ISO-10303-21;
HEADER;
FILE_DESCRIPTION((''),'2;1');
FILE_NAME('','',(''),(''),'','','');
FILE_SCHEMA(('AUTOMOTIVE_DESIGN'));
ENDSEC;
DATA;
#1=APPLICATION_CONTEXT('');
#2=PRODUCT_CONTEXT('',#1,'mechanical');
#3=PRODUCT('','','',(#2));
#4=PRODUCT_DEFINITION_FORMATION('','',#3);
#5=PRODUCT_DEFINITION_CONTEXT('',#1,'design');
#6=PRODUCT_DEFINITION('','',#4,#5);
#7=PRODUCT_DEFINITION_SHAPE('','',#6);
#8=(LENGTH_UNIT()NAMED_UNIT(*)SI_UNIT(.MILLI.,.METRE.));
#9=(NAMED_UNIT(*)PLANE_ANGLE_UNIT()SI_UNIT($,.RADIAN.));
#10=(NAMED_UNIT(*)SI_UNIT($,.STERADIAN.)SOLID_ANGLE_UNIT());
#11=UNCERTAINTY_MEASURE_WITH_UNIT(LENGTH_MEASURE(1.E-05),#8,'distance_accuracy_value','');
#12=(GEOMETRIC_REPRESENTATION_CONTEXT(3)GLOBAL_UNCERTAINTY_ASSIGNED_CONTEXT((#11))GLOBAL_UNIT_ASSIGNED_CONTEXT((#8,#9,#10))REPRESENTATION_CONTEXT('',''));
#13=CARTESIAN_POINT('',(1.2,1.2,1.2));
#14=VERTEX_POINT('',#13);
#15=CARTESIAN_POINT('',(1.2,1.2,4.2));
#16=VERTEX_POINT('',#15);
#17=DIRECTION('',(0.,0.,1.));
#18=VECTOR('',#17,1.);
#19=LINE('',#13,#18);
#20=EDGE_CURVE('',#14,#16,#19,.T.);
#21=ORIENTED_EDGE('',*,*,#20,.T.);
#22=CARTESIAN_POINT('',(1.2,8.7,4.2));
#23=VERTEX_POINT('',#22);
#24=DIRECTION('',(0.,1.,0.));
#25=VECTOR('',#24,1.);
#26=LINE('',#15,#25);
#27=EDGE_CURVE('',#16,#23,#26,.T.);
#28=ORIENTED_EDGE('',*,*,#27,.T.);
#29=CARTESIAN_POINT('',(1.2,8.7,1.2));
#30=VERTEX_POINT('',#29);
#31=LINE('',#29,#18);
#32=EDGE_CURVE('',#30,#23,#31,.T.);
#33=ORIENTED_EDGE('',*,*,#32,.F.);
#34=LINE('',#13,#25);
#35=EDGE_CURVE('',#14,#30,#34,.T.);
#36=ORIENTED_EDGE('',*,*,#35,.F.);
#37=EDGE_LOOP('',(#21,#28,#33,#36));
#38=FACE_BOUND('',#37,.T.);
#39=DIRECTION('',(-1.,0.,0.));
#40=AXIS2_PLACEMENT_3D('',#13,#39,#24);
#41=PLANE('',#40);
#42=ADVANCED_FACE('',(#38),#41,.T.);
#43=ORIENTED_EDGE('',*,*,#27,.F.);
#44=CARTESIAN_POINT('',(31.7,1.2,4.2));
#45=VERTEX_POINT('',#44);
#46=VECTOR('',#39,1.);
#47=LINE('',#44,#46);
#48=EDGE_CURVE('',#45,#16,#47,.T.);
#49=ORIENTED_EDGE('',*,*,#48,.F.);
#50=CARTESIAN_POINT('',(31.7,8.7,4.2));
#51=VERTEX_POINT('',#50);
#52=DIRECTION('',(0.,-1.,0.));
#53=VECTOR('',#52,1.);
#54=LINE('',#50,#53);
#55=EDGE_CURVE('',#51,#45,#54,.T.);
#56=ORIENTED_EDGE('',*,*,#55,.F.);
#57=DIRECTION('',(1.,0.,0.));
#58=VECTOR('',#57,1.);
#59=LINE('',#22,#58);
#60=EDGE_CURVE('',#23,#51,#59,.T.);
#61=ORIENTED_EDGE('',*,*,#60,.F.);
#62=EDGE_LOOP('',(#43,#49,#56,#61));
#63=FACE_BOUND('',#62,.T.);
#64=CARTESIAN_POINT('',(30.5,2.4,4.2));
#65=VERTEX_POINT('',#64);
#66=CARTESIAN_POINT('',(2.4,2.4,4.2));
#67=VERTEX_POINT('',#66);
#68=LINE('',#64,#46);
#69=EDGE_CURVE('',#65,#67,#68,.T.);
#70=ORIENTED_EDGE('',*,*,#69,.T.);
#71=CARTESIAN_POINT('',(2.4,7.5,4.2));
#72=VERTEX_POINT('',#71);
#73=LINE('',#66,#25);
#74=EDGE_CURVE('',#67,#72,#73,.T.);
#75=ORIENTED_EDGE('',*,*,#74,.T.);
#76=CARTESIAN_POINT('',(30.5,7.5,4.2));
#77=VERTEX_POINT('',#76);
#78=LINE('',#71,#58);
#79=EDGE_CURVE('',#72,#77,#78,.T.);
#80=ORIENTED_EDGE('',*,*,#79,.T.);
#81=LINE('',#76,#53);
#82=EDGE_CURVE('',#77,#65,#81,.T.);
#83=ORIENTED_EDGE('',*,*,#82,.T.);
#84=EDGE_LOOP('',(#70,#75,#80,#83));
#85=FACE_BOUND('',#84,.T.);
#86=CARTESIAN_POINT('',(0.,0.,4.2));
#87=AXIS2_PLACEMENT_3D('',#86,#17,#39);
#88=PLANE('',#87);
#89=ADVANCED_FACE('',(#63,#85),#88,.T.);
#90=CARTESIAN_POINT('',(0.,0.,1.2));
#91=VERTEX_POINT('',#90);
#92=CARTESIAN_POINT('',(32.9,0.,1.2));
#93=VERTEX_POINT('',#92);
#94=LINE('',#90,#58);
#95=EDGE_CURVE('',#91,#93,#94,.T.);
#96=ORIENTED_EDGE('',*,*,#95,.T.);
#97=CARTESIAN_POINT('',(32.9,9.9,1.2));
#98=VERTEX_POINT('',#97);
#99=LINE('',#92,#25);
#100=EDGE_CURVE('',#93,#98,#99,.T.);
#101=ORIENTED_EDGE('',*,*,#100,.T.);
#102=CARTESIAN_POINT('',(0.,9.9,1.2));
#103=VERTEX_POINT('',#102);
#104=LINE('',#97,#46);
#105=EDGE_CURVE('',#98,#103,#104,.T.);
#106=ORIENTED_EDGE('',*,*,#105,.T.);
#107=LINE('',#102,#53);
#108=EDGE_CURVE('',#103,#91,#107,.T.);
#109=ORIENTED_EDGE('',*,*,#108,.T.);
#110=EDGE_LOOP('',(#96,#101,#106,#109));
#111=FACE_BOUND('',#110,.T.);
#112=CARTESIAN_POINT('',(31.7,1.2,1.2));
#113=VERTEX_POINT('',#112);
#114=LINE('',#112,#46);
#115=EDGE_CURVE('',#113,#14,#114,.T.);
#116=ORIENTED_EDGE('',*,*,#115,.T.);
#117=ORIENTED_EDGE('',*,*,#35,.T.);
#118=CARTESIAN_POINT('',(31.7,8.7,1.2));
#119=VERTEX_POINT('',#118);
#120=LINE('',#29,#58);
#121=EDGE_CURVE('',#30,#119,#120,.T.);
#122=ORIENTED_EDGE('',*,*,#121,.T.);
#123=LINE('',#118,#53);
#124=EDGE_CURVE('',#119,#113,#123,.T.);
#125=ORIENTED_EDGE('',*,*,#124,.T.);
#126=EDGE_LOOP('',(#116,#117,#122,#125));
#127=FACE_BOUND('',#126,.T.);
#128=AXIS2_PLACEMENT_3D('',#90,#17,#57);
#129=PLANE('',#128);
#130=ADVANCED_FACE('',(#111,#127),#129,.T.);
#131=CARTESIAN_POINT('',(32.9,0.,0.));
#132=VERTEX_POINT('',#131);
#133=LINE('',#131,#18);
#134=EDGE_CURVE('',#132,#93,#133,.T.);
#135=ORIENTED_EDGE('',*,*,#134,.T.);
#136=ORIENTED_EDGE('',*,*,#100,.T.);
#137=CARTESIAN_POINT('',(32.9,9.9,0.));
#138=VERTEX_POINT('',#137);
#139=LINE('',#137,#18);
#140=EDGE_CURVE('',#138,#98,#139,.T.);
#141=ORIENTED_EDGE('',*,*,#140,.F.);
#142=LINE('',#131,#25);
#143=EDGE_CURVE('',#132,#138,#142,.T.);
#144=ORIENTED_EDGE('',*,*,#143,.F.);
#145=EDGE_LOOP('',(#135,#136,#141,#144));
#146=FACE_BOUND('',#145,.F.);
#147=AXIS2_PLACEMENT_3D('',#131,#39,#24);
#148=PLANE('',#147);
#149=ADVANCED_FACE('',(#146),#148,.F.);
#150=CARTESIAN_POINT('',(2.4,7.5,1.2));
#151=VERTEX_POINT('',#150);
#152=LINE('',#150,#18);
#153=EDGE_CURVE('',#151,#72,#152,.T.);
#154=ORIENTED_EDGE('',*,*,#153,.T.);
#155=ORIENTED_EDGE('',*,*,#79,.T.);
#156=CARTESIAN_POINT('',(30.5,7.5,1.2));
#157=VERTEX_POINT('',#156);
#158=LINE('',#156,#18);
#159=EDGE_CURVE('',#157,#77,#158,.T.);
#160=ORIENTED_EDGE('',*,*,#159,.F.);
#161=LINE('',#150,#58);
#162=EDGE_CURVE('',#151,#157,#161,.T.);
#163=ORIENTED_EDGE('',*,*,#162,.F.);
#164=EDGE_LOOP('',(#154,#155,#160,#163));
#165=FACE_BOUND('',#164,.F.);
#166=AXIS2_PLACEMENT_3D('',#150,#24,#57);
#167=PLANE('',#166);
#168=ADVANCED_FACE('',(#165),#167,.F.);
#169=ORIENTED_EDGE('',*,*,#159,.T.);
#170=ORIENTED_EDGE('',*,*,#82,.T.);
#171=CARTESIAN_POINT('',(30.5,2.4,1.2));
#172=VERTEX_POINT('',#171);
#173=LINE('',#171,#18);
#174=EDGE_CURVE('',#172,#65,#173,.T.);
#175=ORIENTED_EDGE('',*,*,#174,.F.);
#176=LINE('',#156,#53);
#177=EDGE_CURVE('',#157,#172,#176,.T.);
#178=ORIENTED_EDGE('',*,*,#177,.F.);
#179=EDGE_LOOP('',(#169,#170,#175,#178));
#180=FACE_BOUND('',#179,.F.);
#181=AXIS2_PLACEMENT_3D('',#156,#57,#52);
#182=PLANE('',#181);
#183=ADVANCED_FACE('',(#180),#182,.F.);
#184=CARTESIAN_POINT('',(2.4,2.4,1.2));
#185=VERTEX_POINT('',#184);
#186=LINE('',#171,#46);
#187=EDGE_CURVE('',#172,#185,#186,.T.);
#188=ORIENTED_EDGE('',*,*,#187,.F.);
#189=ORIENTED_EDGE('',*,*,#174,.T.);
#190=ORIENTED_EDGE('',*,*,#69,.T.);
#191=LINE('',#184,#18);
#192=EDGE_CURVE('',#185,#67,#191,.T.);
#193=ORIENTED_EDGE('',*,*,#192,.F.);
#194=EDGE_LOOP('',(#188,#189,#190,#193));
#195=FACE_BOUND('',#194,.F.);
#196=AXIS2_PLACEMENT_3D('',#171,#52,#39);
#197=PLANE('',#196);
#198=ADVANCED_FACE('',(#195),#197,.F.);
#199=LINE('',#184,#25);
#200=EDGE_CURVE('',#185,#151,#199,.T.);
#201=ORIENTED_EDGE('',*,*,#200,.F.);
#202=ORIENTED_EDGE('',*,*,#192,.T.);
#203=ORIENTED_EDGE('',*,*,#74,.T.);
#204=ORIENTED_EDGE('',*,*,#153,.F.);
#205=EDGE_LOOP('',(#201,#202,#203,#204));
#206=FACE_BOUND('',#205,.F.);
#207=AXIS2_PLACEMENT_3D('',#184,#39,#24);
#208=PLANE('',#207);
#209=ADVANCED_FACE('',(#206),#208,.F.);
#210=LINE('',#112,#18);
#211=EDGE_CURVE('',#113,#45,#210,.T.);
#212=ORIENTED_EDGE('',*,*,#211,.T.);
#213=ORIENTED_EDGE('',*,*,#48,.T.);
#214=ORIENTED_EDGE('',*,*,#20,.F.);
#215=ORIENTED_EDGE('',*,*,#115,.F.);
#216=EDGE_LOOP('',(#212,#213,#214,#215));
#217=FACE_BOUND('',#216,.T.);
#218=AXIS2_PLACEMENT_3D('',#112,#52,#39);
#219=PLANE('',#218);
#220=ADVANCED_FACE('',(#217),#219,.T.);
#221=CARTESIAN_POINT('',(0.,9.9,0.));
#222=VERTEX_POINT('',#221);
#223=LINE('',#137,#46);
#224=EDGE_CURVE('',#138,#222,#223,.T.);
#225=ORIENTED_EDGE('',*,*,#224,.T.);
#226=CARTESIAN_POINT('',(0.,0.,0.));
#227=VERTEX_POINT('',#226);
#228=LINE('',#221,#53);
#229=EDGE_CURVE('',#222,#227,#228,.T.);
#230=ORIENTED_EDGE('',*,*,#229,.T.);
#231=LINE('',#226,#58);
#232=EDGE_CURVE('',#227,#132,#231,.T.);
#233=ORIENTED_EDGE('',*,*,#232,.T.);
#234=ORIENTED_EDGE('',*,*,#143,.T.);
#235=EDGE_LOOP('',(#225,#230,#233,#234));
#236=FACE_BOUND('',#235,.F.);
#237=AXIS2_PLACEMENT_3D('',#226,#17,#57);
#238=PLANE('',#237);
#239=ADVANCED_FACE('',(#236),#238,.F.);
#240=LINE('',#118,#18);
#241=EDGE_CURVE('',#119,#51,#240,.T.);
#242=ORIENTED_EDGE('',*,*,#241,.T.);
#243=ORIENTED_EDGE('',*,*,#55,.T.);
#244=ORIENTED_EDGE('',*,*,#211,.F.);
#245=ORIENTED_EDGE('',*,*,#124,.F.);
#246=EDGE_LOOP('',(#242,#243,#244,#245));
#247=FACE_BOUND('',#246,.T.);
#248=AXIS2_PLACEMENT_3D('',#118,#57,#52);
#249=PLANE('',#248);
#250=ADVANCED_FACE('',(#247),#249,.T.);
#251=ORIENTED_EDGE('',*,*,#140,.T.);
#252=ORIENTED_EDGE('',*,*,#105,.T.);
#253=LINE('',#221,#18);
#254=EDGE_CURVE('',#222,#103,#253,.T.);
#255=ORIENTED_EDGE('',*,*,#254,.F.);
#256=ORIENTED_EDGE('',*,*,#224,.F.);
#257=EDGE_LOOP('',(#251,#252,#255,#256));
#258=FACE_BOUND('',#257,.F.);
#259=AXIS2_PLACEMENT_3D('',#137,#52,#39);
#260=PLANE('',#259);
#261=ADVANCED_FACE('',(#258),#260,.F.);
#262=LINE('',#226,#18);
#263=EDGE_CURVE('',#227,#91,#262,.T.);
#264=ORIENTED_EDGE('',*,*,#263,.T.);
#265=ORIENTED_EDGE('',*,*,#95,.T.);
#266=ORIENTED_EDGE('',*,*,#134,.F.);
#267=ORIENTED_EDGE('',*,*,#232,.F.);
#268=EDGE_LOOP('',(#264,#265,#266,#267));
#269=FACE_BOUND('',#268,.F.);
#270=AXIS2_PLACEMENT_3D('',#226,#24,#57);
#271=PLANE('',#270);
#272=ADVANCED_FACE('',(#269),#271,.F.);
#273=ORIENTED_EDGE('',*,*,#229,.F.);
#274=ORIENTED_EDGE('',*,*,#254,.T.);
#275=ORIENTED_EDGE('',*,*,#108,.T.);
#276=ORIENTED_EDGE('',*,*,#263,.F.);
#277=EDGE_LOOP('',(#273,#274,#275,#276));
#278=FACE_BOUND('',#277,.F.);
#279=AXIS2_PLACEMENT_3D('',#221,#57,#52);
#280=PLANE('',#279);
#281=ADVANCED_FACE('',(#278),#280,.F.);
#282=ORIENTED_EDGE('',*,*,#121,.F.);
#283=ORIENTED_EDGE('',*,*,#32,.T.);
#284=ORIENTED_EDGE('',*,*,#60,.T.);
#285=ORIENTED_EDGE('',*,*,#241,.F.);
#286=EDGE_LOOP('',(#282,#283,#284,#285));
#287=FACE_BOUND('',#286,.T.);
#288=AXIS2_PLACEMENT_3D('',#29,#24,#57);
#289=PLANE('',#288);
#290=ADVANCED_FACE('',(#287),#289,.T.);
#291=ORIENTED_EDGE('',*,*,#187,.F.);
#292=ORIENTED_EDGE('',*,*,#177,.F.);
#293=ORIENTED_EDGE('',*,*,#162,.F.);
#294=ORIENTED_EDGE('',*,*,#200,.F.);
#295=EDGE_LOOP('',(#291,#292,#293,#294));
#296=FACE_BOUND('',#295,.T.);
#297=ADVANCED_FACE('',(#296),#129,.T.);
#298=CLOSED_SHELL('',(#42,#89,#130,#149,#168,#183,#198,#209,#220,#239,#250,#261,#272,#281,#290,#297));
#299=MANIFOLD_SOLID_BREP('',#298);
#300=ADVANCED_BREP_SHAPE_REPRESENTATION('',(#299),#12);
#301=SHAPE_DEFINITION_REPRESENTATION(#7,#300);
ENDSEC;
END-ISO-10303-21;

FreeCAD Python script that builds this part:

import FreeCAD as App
import Part
import Sketcher
from FreeCAD import Vector


def add_polygon(sketch, points):
    """Adds a closed chain of lines whose ends are joined by coincident constraints."""
    first, n = sketch.GeometryCount, len(points)
    for a, b in zip(points, points[1:] + points[:1]):
        sketch.addGeometry(Part.LineSegment(App.Vector(*a, 0), App.Vector(*b, 0)), False)
    for i in range(n):
        sketch.addConstraint(Sketcher.Constraint("Coincident", first + i, 2, first + (i + 1) % n, 1))

doc = App.newDocument("Part")
body = doc.addObject("PartDesign::Body", "Body")

sketch1 = body.newObject("Sketcher::SketchObject", "Sketch")
sketch1.AttachmentSupport = (doc.getObject("XY_Plane"), [""])
sketch1.MapMode = "FlatFace"
add_polygon(sketch1, [(0, 10), (0, 0), (33, 0), (33, 10)])
sketch1.addConstraint([
    Sketcher.Constraint("Vertical", 0),
    Sketcher.Constraint("Horizontal", 1),
    Sketcher.Constraint("Vertical", 2),
    Sketcher.Constraint("Horizontal", 3),
    Sketcher.Constraint("Coincident", 0, 2, -1, 1),
    Sketcher.Constraint("DistanceX", 1, 1, 1, 2, 32.9),
    Sketcher.Constraint("DistanceY", 0, 2, 0, 1, 9.9),
])
pad1 = body.newObject("PartDesign::Pad", "Pad")
pad1.Profile = sketch1
pad1.Length = 1.2

sketch2 = body.newObject("Sketcher::SketchObject", "Sketch001")
sketch2.AttachmentSupport = (doc.getObject("XY_Plane"), [""])
sketch2.MapMode = "FlatFace"
sketch2.AttachmentOffset = App.Placement(Vector(0, 0, 1.2), App.Rotation())
add_polygon(sketch2, [(32, 9), (1, 9), (1, 1), (32, 1)])
add_polygon(sketch2, [(2, 2), (2, 8), (30, 8), (30, 2)])
sketch2.addConstraint([
    Sketcher.Constraint("Horizontal", 0),
    Sketcher.Constraint("Vertical", 1),
    Sketcher.Constraint("Horizontal", 2),
    Sketcher.Constraint("Vertical", 3),
    Sketcher.Constraint("Vertical", 4),
    Sketcher.Constraint("Horizontal", 5),
    Sketcher.Constraint("Vertical", 6),
    Sketcher.Constraint("Horizontal", 7),
    Sketcher.Constraint("DistanceX", -1, 1, 0, 2, 1.2),
    Sketcher.Constraint("DistanceY", -1, 1, 1, 2, 1.2),
    Sketcher.Constraint("DistanceX", 0, 2, 4, 2, 1.2),
    Sketcher.Constraint("DistanceY", 4, 2, 0, 2, 1.2),
    Sketcher.Constraint("DistanceX", 5, 2, 3, 2, 1.2),
    Sketcher.Constraint("DistanceY", 2, 2, 6, 2, 1.2),
    Sketcher.Constraint("DistanceX", 0, 2, 0, 1, 30.5),
    Sketcher.Constraint("DistanceY", 1, 2, 1, 1, 7.5),
])
pad2 = body.newObject("PartDesign::Pad", "Pad001")
pad2.Profile = sketch2
pad2.Length = 3

doc.recompute()
